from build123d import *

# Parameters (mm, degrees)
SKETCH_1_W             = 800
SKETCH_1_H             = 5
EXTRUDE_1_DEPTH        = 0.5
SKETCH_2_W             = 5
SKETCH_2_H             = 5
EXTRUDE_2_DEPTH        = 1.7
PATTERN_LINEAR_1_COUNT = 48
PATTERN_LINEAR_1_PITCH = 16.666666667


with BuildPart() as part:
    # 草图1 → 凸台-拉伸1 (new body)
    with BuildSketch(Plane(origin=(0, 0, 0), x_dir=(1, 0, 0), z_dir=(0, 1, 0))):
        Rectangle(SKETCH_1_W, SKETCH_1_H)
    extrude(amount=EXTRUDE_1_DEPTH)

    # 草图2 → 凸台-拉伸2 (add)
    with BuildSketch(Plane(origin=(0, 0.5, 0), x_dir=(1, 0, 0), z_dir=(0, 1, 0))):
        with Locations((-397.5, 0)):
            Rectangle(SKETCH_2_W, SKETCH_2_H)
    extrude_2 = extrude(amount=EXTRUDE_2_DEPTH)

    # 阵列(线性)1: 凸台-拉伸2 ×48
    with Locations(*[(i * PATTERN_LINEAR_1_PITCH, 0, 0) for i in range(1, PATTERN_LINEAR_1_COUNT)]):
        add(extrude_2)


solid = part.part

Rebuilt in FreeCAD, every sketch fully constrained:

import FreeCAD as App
import Part
import Sketcher
from FreeCAD import Vector
Q = App.Units.Quantity


def add_polygon(sketch, points):
    """Adds a closed chain of lines whose ends are joined by coincident constraints."""
    first, n = sketch.GeometryCount, len(points)
    for a, b in zip(points, points[1:] + points[:1]):
        sketch.addGeometry(Part.LineSegment(App.Vector(*a, 0), App.Vector(*b, 0)), False)
    for i in range(n):
        sketch.addConstraint(Sketcher.Constraint("Coincident", first + i, 2, first + (i + 1) % n, 1))

doc = App.newDocument("Part")
body = doc.addObject("PartDesign::Body", "Body")

sketch1 = body.newObject("Sketcher::SketchObject", "Sketch")
sketch1.AttachmentSupport = (doc.getObject("XZ_Plane"), [""])
sketch1.MapMode = "FlatFace"
add_polygon(sketch1, [(-400, -2), (-400, 2), (400, 2), (400, -2)])
sketch1.addConstraint([
    Sketcher.Constraint("Vertical", 0),
    Sketcher.Constraint("Horizontal", 1),
    Sketcher.Constraint("Vertical", 2),
    Sketcher.Constraint("Horizontal", 3),
    Sketcher.Constraint("Symmetric", 0, 2, 2, 2, -1, 1),
    Sketcher.Constraint("DistanceX", 1, 1, 1, 2, Q("800 mm")),
    Sketcher.Constraint("DistanceY", 0, 1, 0, 2, Q("5 mm")),
])
pad1 = body.newObject("PartDesign::Pad", "Pad")
pad1.Profile = sketch1
pad1.Length = 0.5
pad1.Reversed = True

sketch2 = body.newObject("Sketcher::SketchObject", "Sketch001")
sketch2.AttachmentSupport = (doc.getObject("XZ_Plane"), [""])
sketch2.MapMode = "FlatFace"
sketch2.AttachmentOffset = App.Placement(Vector(0, 0, -0.5), App.Rotation())
add_polygon(sketch2, [(-400, -2), (-400, 2), (-395, 2), (-395, -2)])
sketch2.addConstraint([
    Sketcher.Constraint("Vertical", 0),
    Sketcher.Constraint("Horizontal", 1),
    Sketcher.Constraint("Vertical", 2),
    Sketcher.Constraint("Horizontal", 3),
    Sketcher.Constraint("Equal", 3, 0),
    Sketcher.Constraint("DistanceX", 1, 1, 1, 2, Q("5 mm")),
    Sketcher.Constraint("DistanceX", 0, 2, -1, 1, Q("400 mm")),
    Sketcher.Constraint("DistanceY", -1, 1, 0, 2, Q("2.5 mm")),
])
pad2 = body.newObject("PartDesign::Pad", "Pad001")
pad2.Profile = sketch2
pad2.Length = 1.7
pad2.Reversed = True
doc.recompute()

linearpattern = body.newObject("PartDesign::LinearPattern", "LinearPattern")
linearpattern.Originals = [pad2]
linearpattern.Direction = (doc.getObject("X_Axis"), [""])
linearpattern.Mode = "offset"
linearpattern.Offset = 16.666667
linearpattern.Occurrences = 48
body.Tip = linearpattern

doc.recompute()
